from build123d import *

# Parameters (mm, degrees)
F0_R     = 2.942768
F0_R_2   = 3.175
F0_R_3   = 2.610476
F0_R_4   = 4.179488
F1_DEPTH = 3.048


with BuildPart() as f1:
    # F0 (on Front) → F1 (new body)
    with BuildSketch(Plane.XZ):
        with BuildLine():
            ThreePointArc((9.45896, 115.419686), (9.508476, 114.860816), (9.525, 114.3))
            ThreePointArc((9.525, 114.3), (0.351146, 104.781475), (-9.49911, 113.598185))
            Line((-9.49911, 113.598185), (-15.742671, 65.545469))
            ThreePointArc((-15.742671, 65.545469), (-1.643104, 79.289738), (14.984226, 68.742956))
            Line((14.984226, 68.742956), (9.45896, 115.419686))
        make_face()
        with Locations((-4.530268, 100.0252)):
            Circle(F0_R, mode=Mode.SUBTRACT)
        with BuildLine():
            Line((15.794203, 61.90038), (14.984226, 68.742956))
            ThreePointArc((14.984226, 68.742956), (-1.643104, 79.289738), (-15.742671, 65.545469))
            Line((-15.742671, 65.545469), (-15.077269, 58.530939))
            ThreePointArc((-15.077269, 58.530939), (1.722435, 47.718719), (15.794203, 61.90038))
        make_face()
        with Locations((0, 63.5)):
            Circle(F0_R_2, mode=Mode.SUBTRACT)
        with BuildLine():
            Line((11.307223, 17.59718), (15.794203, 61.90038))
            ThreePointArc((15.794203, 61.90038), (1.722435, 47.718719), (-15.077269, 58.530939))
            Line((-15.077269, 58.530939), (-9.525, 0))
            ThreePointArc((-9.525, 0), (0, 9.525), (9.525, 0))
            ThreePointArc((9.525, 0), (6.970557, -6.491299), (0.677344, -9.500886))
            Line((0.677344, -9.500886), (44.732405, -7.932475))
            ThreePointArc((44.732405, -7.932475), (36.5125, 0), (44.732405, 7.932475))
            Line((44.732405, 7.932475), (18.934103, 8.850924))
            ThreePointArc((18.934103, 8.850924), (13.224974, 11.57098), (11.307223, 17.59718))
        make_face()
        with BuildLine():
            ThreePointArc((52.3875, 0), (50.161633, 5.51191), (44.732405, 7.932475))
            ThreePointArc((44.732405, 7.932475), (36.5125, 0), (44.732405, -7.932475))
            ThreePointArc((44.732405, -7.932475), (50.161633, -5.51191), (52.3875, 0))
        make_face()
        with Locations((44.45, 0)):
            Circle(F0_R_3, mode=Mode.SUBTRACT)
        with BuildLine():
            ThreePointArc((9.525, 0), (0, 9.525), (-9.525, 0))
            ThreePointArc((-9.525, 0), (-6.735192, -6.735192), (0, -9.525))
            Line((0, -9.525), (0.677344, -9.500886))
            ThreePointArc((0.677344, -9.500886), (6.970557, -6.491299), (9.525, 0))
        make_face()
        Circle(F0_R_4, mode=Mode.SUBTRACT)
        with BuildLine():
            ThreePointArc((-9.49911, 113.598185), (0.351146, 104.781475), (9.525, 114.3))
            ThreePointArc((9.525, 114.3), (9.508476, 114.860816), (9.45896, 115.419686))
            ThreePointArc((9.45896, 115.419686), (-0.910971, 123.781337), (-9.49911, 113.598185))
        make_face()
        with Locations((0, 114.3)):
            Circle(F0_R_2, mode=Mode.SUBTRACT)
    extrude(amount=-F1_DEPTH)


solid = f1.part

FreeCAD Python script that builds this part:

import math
import FreeCAD as App
import Part
import Sketcher
from FreeCAD import Vector
Q = App.Units.Quantity

doc = App.newDocument("Part")
body = doc.addObject("PartDesign::Body", "Body")

# Sketch on XZ plane
sketch1 = body.newObject("Sketcher::SketchObject", "Sketch")
sketch1.AttachmentSupport = (doc.getObject("XZ_Plane"), [""])
sketch1.MapMode = "FlatFace"
sketch1.addGeometry(Part.LineSegment(Vector(14.984226, 68.742956, 0), Vector(9.45896, 115.419686, 0)), False)
sketch1.addGeometry(Part.ArcOfCircle(Part.Circle(Vector(0, 114.3, 0), Vector(0, 0, 1), 9.525), math.radians(6.750865), math.radians(184.225457)), False)
sketch1.addGeometry(Part.LineSegment(Vector(-9.49911, 113.598185, 0), Vector(-15.742671, 65.545469, 0)), False)
sketch1.addGeometry(Part.LineSegment(Vector(-15.742671, 65.545469, 0), Vector(-15.077269, 58.530939, 0)), False)
sketch1.addGeometry(Part.LineSegment(Vector(-15.077269, 58.530939, 0), Vector(-9.525, 0, 0)), False)
sketch1.addGeometry(Part.ArcOfCircle(Part.Circle(Vector(0, 0, 0), Vector(0, 0, 1), 9.525), math.radians(-179.999998), math.radians(-90.000002)), False)
sketch1.addGeometry(Part.LineSegment(Vector(0, -9.525, 0), Vector(0.677344, -9.500886, 0)), False)
sketch1.addGeometry(Part.LineSegment(Vector(0.677344, -9.500886, 0), Vector(44.732405, -7.932475, 0)), False)
sketch1.addGeometry(Part.ArcOfCircle(Part.Circle(Vector(44.449999, 0.000001, 0), Vector(0, 0, 1), 7.937501), math.radians(-87.961059), math.radians(-0.000005)), False)
sketch1.addGeometry(Part.ArcOfCircle(Part.Circle(Vector(44.449999, -0.000001, 0), Vector(0, 0, 1), 7.937501), math.radians(0.000005), math.radians(87.961059)), False)
sketch1.addGeometry(Part.LineSegment(Vector(44.732405, 7.932475, 0), Vector(18.934103, 8.850924, 0)), False)
sketch1.addGeometry(Part.ArcOfCircle(Part.Circle(Vector(19.216961, 16.796091, 0), Vector(0, 0, 1), 7.950201), math.radians(174.216872), math.radians(267.961061)), False)
sketch1.addGeometry(Part.LineSegment(Vector(11.307223, 17.59718, 0), Vector(15.794203, 61.90038, 0)), False)
sketch1.addGeometry(Part.LineSegment(Vector(15.794203, 61.90038, 0), Vector(14.984226, 68.742956, 0)), False)
sketch1.addGeometry(Part.Circle(Vector(0, 0, 0), Vector(0, 0, 1), 4.179488), False)
sketch1.addGeometry(Part.Circle(Vector(44.45, 0, 0), Vector(0, 0, 1), 2.610476), False)
sketch1.addGeometry(Part.Circle(Vector(0, 63.5, 0), Vector(0, 0, 1), 3.175), False)
sketch1.addGeometry(Part.Circle(Vector(-4.530268, 100.0252, 0), Vector(0, 0, 1), 2.942768), False)
sketch1.addGeometry(Part.Circle(Vector(0, 114.3, 0), Vector(0, 0, 1), 3.175), False)
sketch1.addConstraint(Sketcher.Constraint("Coincident", 0, 2, 1, 1))
sketch1.addConstraint(Sketcher.Constraint("Coincident", 1, 2, 2, 1))
sketch1.addConstraint(Sketcher.Constraint("Coincident", 2, 2, 3, 1))
sketch1.addConstraint(Sketcher.Constraint("Coincident", 3, 2, 4, 1))
sketch1.addConstraint(Sketcher.Constraint("Coincident", 4, 2, 5, 1))
sketch1.addConstraint(Sketcher.Constraint("Coincident", 5, 2, 6, 1))
sketch1.addConstraint(Sketcher.Constraint("Coincident", 6, 2, 7, 1))
sketch1.addConstraint(Sketcher.Constraint("Coincident", 7, 2, 8, 1))
sketch1.addConstraint(Sketcher.Constraint("Coincident", 8, 2, 9, 1))
sketch1.addConstraint(Sketcher.Constraint("Coincident", 9, 2, 10, 1))
sketch1.addConstraint(Sketcher.Constraint("Coincident", 10, 2, 11, 2))
sketch1.addConstraint(Sketcher.Constraint("Coincident", 11, 1, 12, 1))
sketch1.addConstraint(Sketcher.Constraint("Coincident", 12, 2, 13, 1))
sketch1.addConstraint(Sketcher.Constraint("Coincident", 13, 2, 0, 1))
sketch1.addConstraint(Sketcher.Constraint("Coincident", 5, 3, -1, 1))
sketch1.addConstraint(Sketcher.Constraint("Coincident", 14, 3, -1, 1))
sketch1.addConstraint(Sketcher.Constraint("Coincident", 9, 3, 8, 3))
sketch1.addConstraint(Sketcher.Constraint("Coincident", 15, 3, 8, 3))
sketch1.addConstraint(Sketcher.Constraint("Coincident", 18, 3, 1, 3))
sketch1.addConstraint(Sketcher.Constraint("PointOnObject", 1, 3, -2))
sketch1.addConstraint(Sketcher.Constraint("PointOnObject", 8, 3, -1))
sketch1.addConstraint(Sketcher.Constraint("PointOnObject", 16, 3, -2))
sketch1.addConstraint(Sketcher.Constraint("PointOnObject", 4, 2, -1))
sketch1.addConstraint(Sketcher.Constraint("PointOnObject", 5, 2, -2))
sketch1.addConstraint(Sketcher.Constraint("PointOnObject", 8, 2, -1))
sketch1.addConstraint(Sketcher.Constraint("Diameter", 16, Q("0.25 in")))
sketch1.addConstraint(Sketcher.Constraint("Diameter", 18, Q("0.25 in")))
sketch1.addConstraint(Sketcher.Constraint("Radius", 1, Q("0.375 in")))
sketch1.addConstraint(Sketcher.Constraint("Radius", 5, Q("0.375 in")))
sketch1.addConstraint(Sketcher.Constraint("Radius", 8, Q("0.3125 in")))
sketch1.addConstraint(Sketcher.Constraint("Radius", 11, Q("0.313 in")))
sketch1.addConstraint(Sketcher.Constraint("DistanceY", 16, 3, 1, 3, Q("2 in")))
sketch1.addConstraint(Sketcher.Constraint("DistanceY", -1, 1, 1, 3, Q("4.5 in")))
sketch1.addConstraint(Sketcher.Constraint("DistanceX", -1, 1, 8, 3, Q("1.75 in")))
sketch1.addConstraint(Sketcher.Constraint("Diameter", 15, Q("5.220952 mm")))
sketch1.addConstraint(Sketcher.Constraint("DistanceY", -1, 1, 17, 3, Q("3.938 in")))
sketch1.addConstraint(Sketcher.Constraint("Diameter", 14, Q("8.358976 mm")))
sketch1.addConstraint(Sketcher.Constraint("Diameter", 17, Q("5.885536 mm")))
sketch1.addConstraint(Sketcher.Constraint("DistanceX", -1, 1, 0, 2, Q("0.3724 in")))
sketch1.addConstraint(Sketcher.Constraint("DistanceX", 0, 2, 11, 3, Q("9.758001 mm")))
sketch1.addConstraint(Sketcher.Constraint("DistanceY", 1, 2, 0, 2, Q("1.821501 mm")))
sketch1.addConstraint(Sketcher.Constraint("DistanceX", 3, 2, 17, 3, Q("10.547001 mm")))
sketch1.addConstraint(Sketcher.Constraint("DistanceX", 10, 2, 9, 2, Q("25.798302 mm")))
sketch1.addConstraint(Sketcher.Constraint("DistanceY", 11, 1, 12, 2, Q("44.3032 mm")))
sketch1.addConstraint(Sketcher.Constraint("Distance", 3, Q("7.04602 mm")))
sketch1.addConstraint(Sketcher.Constraint("Distance", 7, Q("44.082971 mm")))
sketch1.addConstraint(Sketcher.Constraint("Distance", 12, Q("44.529839 mm")))
sketch1.addConstraint(Sketcher.Constraint("Distance", 13, Q("6.890349 mm")))
sketch1.addConstraint(Sketcher.Constraint("DistanceY", -1, 1, 11, 3, Q("16.796091 mm")))
sketch1.addConstraint(Sketcher.Constraint("DistanceX", 17, 3, -1, 1, Q("4.530268 mm")))
sketch1.addConstraint(Sketcher.Constraint("DistanceX", 2, 2, -1, 1, Q("15.742671 mm")))
sketch1.addConstraint(Sketcher.Constraint("DistanceY", -1, 1, 2, 2, Q("65.545469 mm")))
sketch1.addConstraint(Sketcher.Constraint("DistanceY", -1, 1, 11, 1, Q("17.59718 mm")))
sketch1.addConstraint(Sketcher.Constraint("DistanceX", 6, 2, 7, 2, Q("44.055061 mm")))
sketch1.addConstraint(Sketcher.Constraint("DistanceY", 7, 2, 9, 2, Q("15.86495 mm")))
sketch1.addConstraint(Sketcher.Constraint("DistanceX", 6, 2, 10, 2, Q("18.256759 mm")))
sketch1.addConstraint(Sketcher.Constraint("DistanceX", -1, 1, 13, 2, Q("14.984226 mm")))
pad1 = body.newObject("PartDesign::Pad", "Pad")
pad1.Profile = sketch1
pad1.Length = Q("0.12 in")
pad1.Reversed = True

doc.recompute()
